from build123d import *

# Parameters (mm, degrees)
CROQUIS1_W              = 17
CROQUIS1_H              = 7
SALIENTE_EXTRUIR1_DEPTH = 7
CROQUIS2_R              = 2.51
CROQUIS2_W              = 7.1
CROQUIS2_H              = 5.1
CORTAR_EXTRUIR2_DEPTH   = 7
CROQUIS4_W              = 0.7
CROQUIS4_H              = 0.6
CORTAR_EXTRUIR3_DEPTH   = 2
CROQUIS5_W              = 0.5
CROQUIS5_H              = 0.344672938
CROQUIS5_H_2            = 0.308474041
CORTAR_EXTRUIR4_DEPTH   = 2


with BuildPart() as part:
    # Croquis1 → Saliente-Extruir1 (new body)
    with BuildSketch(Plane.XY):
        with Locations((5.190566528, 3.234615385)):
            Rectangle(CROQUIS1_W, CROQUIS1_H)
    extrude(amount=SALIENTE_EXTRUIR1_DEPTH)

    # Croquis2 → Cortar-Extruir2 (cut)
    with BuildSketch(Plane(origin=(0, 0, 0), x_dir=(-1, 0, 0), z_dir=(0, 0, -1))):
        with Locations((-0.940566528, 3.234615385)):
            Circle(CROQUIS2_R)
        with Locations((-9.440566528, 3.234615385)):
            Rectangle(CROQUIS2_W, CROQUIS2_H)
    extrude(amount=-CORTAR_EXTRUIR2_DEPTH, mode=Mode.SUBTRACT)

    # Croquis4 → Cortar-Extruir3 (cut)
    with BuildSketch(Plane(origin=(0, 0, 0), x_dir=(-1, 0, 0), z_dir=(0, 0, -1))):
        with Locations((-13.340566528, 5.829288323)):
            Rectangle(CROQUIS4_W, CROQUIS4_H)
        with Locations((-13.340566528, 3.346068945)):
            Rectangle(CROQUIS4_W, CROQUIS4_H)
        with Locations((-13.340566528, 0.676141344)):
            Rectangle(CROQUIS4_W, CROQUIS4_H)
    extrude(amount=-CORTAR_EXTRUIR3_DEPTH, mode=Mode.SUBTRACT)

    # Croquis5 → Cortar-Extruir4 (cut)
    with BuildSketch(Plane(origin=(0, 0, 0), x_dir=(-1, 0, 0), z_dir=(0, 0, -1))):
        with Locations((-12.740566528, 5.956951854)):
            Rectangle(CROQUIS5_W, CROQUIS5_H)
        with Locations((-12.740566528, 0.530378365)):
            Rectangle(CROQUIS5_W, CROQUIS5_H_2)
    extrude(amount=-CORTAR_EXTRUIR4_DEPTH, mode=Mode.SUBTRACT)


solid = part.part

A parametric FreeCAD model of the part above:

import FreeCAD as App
import Part
import Sketcher

V = App.Vector


def add_polygon(sketch, points):
    """Adds a closed chain of lines whose ends are joined by coincident constraints."""
    first, n = sketch.GeometryCount, len(points)
    for a, b in zip(points, points[1:] + points[:1]):
        sketch.addGeometry(Part.LineSegment(App.Vector(*a, 0), App.Vector(*b, 0)), False)
    for i in range(n):
        sketch.addConstraint(Sketcher.Constraint("Coincident", first + i, 2, first + (i + 1) % n, 1))

doc = App.newDocument("Part")
body = doc.addObject("PartDesign::Body", "Body")

sketch1 = doc.addObject("Sketcher::SketchObject", "Sketch")
body.addObject(sketch1)
sketch1.AttachmentSupport = (doc.XY_Plane, [""])
sketch1.MapMode = "FlatFace"
add_polygon(sketch1, [(-3.309433, 6.734615), (-3.309433, -0.265385), (13.690567, -0.265385), (13.690567, 6.734615)])
sketch1.addConstraint([
    Sketcher.Constraint("Vertical", 0),
    Sketcher.Constraint("Horizontal", 1),
    Sketcher.Constraint("Vertical", 2),
    Sketcher.Constraint("Horizontal", 3),
    Sketcher.Constraint("DistanceX", 1, 1, 1, 2, 17.0),
    Sketcher.Constraint("DistanceY", 0, 2, 0, 1, 7.0),
    Sketcher.Constraint("DistanceX", 0, 2, -1, 1, 3.309433),
    Sketcher.Constraint("DistanceY", 0, 2, -1, 1, 0.265385),
])
pad1 = doc.addObject("PartDesign::Pad", "Pad")
body.addObject(pad1)
pad1.Profile = sketch1
pad1.Length = 7

sketch2 = doc.addObject("Sketcher::SketchObject", "Sketch001")
body.addObject(sketch2)
sketch2.AttachmentSupport = (doc.XY_Plane, [""])
sketch2.MapMode = "FlatFace"
sketch2.addGeometry(Part.Circle(V(0.940567, 3.234615, 0), V(0, 0, 1), 2.51), False)
add_polygon(sketch2, [(12.990567, 5.784615), (12.990567, 0.684615), (5.890567, 0.684615), (5.890567, 5.784615)])
sketch2.addConstraint([
    Sketcher.Constraint("Vertical", 1),
    Sketcher.Constraint("Horizontal", 2),
    Sketcher.Constraint("Vertical", 3),
    Sketcher.Constraint("Horizontal", 4),
    Sketcher.Constraint("Diameter", 0, 5.02),
    Sketcher.Constraint("DistanceX", 2, 2, 2, 1, 7.1),
    Sketcher.Constraint("DistanceY", 1, 2, 1, 1, 5.1),
    Sketcher.Constraint("DistanceX", 0, 3, 1, 2, 12.05),
    Sketcher.Constraint("DistanceY", 1, 2, 0, 3, 2.55),
    Sketcher.Constraint("DistanceX", -1, 1, 0, 3, 0.940567),
    Sketcher.Constraint("DistanceY", -1, 1, 0, 3, 3.234615),
])
pocket1 = doc.addObject("PartDesign::Pocket", "Pocket")
body.addObject(pocket1)
pocket1.Profile = sketch2
pocket1.Length = 7
pocket1.Reversed = True

sketch3 = doc.addObject("Sketcher::SketchObject", "Sketch002")
body.addObject(sketch3)
sketch3.AttachmentSupport = (doc.XY_Plane, [""])
sketch3.MapMode = "FlatFace"
add_polygon(sketch3, [(13.690567, 6.129288), (13.690567, 5.529288), (12.990567, 5.529288), (12.990567, 6.129288)])
add_polygon(sketch3, [(13.690567, 3.646069), (13.690567, 3.046069), (12.990567, 3.046069), (12.990567, 3.646069)])
add_polygon(sketch3, [(13.690567, 0.976141), (13.690567, 0.376141), (12.990567, 0.376141), (12.990567, 0.976141)])
sketch3.addConstraint([
    Sketcher.Constraint("Vertical", 0),
    Sketcher.Constraint("Horizontal", 1),
    Sketcher.Constraint("Vertical", 2),
    Sketcher.Constraint("Horizontal", 3),
    Sketcher.Constraint("Vertical", 4),
    Sketcher.Constraint("Horizontal", 5),
    Sketcher.Constraint("Vertical", 6),
    Sketcher.Constraint("Horizontal", 7),
    Sketcher.Constraint("Vertical", 8),
    Sketcher.Constraint("Horizontal", 9),
    Sketcher.Constraint("Vertical", 10),
    Sketcher.Constraint("Horizontal", 11),
    Sketcher.Constraint("Vertical", 3, 2, 4, 2),
    Sketcher.Constraint("Vertical", 2, 2, 5, 2),
    Sketcher.Constraint("Vertical", 7, 2, 8, 2),
    Sketcher.Constraint("Vertical", 6, 2, 9, 2),
    Sketcher.Constraint("Equal", 2, 4),
    Sketcher.Constraint("Equal", 6, 8),
    Sketcher.Constraint("DistanceX", 1, 2, 1, 1, 0.7),
    Sketcher.Constraint("DistanceY", 0, 2, 0, 1, 0.6),
    Sketcher.Constraint("DistanceY", -1, 1, 0, 2, 5.529288),
    Sketcher.Constraint("DistanceY", -1, 1, 4, 2, 3.046069),
    Sketcher.Constraint("DistanceY", -1, 1, 8, 2, 0.376141),
    Sketcher.Constraint("DistanceX", -1, 1, 0, 2, 13.690567),
])
pocket2 = doc.addObject("PartDesign::Pocket", "Pocket001")
body.addObject(pocket2)
pocket2.Profile = sketch3
pocket2.Length = 2
pocket2.Reversed = True

sketch4 = doc.addObject("Sketcher::SketchObject", "Sketch003")
body.addObject(sketch4)
sketch4.AttachmentSupport = (doc.XY_Plane, [""])
sketch4.MapMode = "FlatFace"
add_polygon(sketch4, [(12.990567, 6.129288), (12.990567, 5.784615), (12.490567, 5.784615), (12.490567, 6.129288)])
add_polygon(sketch4, [(12.990567, 0.684615), (12.990567, 0.376141), (12.490567, 0.376141), (12.490567, 0.684615)])
sketch4.addConstraint([
    Sketcher.Constraint("Vertical", 0),
    Sketcher.Constraint("Horizontal", 1),
    Sketcher.Constraint("Vertical", 2),
    Sketcher.Constraint("Horizontal", 3),
    Sketcher.Constraint("Vertical", 4),
    Sketcher.Constraint("Horizontal", 5),
    Sketcher.Constraint("Vertical", 6),
    Sketcher.Constraint("Horizontal", 7),
    Sketcher.Constraint("Vertical", 3, 2, 4, 2),
    Sketcher.Constraint("Vertical", 2, 2, 5, 2),
    Sketcher.Constraint("DistanceX", 1, 2, 1, 1, 0.5),
    Sketcher.Constraint("DistanceY", 6, 2, 1, 2, 5.1),
    Sketcher.Constraint("DistanceY", 0, 2, 0, 1, 0.344673),
    Sketcher.Constraint("DistanceY", 4, 2, 4, 1, 0.308474),
    Sketcher.Constraint("DistanceY", -1, 1, 2, 2, 6.129288),
    Sketcher.Constraint("DistanceX", -1, 1, 0, 2, 12.990567),
])
pocket3 = doc.addObject("PartDesign::Pocket", "Pocket002")
body.addObject(pocket3)
pocket3.Profile = sketch4
pocket3.Length = 2
pocket3.Reversed = True

doc.recompute()
